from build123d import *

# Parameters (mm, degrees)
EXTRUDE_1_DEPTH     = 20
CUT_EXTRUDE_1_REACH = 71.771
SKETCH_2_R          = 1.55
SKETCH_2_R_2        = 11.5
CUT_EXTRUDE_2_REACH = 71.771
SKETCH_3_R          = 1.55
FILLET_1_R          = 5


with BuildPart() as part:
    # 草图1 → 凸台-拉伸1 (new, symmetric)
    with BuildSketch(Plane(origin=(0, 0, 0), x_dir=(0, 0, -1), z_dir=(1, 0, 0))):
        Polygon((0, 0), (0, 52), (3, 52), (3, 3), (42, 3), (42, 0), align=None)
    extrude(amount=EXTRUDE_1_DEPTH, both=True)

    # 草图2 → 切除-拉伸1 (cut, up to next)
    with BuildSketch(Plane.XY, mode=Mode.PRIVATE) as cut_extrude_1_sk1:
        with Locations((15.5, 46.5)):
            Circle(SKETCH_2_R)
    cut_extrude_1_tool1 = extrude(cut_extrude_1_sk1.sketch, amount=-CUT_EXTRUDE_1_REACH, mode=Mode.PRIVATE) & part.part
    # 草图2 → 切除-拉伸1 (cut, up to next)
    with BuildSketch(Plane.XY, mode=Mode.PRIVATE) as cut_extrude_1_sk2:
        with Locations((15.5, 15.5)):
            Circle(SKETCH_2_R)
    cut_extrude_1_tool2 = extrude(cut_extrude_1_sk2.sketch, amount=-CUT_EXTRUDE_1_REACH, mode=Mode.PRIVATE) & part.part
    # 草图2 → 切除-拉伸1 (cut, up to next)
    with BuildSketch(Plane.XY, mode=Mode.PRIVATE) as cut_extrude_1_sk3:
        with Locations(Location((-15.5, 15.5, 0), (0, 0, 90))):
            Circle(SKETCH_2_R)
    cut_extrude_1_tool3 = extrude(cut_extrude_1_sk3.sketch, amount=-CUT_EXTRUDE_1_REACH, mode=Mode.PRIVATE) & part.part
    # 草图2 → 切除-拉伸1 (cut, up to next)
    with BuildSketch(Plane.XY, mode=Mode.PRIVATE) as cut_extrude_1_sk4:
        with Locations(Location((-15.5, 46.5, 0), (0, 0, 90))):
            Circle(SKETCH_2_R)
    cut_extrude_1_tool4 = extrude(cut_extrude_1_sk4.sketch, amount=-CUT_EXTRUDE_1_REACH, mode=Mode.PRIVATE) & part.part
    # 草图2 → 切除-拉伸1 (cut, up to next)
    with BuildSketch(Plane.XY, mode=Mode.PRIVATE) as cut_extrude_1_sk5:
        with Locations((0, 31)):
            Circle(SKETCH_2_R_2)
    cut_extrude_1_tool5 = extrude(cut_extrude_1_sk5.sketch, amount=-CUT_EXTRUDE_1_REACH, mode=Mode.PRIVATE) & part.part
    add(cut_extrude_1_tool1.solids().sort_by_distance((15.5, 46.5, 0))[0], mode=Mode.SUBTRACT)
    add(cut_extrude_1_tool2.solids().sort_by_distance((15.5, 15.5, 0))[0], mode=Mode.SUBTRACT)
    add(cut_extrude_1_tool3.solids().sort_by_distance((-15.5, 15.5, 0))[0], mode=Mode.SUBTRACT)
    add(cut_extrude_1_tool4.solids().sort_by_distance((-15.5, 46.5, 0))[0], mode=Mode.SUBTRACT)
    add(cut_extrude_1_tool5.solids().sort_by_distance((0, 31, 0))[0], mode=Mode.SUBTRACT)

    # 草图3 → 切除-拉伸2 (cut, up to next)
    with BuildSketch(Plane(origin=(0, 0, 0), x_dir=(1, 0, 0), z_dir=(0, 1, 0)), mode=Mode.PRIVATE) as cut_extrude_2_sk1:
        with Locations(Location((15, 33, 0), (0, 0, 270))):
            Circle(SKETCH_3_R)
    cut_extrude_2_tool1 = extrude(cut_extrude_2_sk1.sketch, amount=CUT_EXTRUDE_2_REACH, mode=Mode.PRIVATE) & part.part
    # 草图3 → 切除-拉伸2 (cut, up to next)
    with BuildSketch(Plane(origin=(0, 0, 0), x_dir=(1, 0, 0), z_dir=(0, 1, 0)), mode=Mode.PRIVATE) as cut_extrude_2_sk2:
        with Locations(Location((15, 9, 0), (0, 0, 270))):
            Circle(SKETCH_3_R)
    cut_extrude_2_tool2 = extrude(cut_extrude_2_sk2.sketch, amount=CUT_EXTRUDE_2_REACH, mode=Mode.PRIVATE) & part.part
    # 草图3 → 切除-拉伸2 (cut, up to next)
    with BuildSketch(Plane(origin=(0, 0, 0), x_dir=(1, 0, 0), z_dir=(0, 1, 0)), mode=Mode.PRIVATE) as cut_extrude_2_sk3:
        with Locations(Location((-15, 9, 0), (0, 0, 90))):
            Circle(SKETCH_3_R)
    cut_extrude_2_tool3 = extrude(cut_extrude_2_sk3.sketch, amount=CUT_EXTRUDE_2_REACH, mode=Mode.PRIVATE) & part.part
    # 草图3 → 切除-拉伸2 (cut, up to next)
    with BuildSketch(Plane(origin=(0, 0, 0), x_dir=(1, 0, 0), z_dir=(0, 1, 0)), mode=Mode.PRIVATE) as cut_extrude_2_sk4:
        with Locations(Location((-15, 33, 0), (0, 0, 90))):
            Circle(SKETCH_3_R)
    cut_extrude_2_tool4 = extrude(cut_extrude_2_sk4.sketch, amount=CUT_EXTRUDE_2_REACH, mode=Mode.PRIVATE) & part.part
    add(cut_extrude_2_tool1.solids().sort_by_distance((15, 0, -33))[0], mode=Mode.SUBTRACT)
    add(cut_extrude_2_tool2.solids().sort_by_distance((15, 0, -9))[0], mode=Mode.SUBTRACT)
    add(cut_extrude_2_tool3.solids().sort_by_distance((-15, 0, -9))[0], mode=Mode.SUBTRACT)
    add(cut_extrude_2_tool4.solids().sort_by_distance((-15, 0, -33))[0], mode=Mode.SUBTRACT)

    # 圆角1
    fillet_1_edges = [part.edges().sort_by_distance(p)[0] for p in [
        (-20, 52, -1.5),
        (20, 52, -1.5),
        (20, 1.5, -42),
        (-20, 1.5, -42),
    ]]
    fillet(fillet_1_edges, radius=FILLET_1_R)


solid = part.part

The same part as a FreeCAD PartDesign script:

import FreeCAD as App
import Part
import Sketcher


def edges_at(feature, points):
    """Names of the edges that pass closest to the given points."""
    edges = feature.Shape.Edges
    near = lambda p: min(range(len(edges)), key=lambda i: edges[i].distToShape(Part.Vertex(*p))[0])
    return sorted({f"Edge{near(p) + 1}" for p in points})


def add_polygon(sketch, points):
    """Adds a closed chain of lines whose ends are joined by coincident constraints."""
    first, n = sketch.GeometryCount, len(points)
    for a, b in zip(points, points[1:] + points[:1]):
        sketch.addGeometry(Part.LineSegment(App.Vector(*a, 0), App.Vector(*b, 0)), False)
    for i in range(n):
        sketch.addConstraint(Sketcher.Constraint("Coincident", first + i, 2, first + (i + 1) % n, 1))

doc = App.newDocument("Part")
body = doc.addObject("PartDesign::Body", "Body")

sketch1 = body.newObject("Sketcher::SketchObject", "Sketch")
sketch1.AttachmentSupport = (doc.getObject("YZ_Plane"), [""])
sketch1.MapMode = "FlatFace"
add_polygon(sketch1, [(52, 0), (0, 0), (0, -42), (3, -42), (3, -3), (52, -3)])
sketch1.addConstraint([
    Sketcher.Constraint("Horizontal", 0),
    Sketcher.Constraint("Vertical", 1),
    Sketcher.Constraint("Horizontal", 2),
    Sketcher.Constraint("Vertical", 3),
    Sketcher.Constraint("Horizontal", 4),
    Sketcher.Constraint("Vertical", 5),
    Sketcher.Constraint("Coincident", 0, 2, -1, 1),
    Sketcher.Constraint("Equal", 2, 5),
    Sketcher.Constraint("DistanceX", 0, 2, 0, 1, 52.0),
    Sketcher.Constraint("DistanceX", 2, 1, 2, 2, 3.0),
    Sketcher.Constraint("DistanceY", 1, 2, 1, 1, 42.0),
])
pad1 = body.newObject("PartDesign::Pad", "Pad")
pad1.Profile = sketch1
pad1.Length = 40
pad1.Midplane = True

sketch2 = body.newObject("Sketcher::SketchObject", "Sketch001")
sketch2.AttachmentSupport = (doc.getObject("XY_Plane"), [""])
sketch2.MapMode = "FlatFace"
sketch2.addGeometry(Part.Circle(App.Vector(15.5, 46.5, 0), App.Vector(0, 0, 1), 1.6), False)
sketch2.addConstraint([
    Sketcher.Constraint("Diameter", 0, 3.1),
    Sketcher.Constraint("DistanceX", -1, 1, 0, 3, 15.5),
    Sketcher.Constraint("DistanceY", -1, 1, 0, 3, 46.5),
])
pocket1 = body.newObject("PartDesign::Pocket", "Pocket")
pocket1.Profile = sketch2
pocket1.Type = "UpToFirst"

sketch3 = body.newObject("Sketcher::SketchObject", "Sketch002")
sketch3.AttachmentSupport = (doc.getObject("XY_Plane"), [""])
sketch3.MapMode = "FlatFace"
sketch3.addGeometry(Part.Circle(App.Vector(15.5, 15.5, 0), App.Vector(0, 0, 1), 1.6), False)
sketch3.addConstraint([
    Sketcher.Constraint("Diameter", 0, 3.1),
    Sketcher.Constraint("DistanceX", -1, 1, 0, 3, 15.5),
    Sketcher.Constraint("DistanceY", -1, 1, 0, 3, 15.5),
])
pocket2 = body.newObject("PartDesign::Pocket", "Pocket001")
pocket2.Profile = sketch3
pocket2.Type = "UpToFirst"

sketch4 = body.newObject("Sketcher::SketchObject", "Sketch003")
sketch4.AttachmentSupport = (doc.getObject("XY_Plane"), [""])
sketch4.MapMode = "FlatFace"
sketch4.addGeometry(Part.Circle(App.Vector(-15.5, 15.5, 0), App.Vector(0, 0, 1), 1.6), False)
sketch4.addConstraint([
    Sketcher.Constraint("Diameter", 0, 3.1),
    Sketcher.Constraint("DistanceX", 0, 3, -1, 1, 15.5),
    Sketcher.Constraint("DistanceY", -1, 1, 0, 3, 15.5),
])
pocket3 = body.newObject("PartDesign::Pocket", "Pocket002")
pocket3.Profile = sketch4
pocket3.Type = "UpToFirst"

sketch5 = body.newObject("Sketcher::SketchObject", "Sketch004")
sketch5.AttachmentSupport = (doc.getObject("XY_Plane"), [""])
sketch5.MapMode = "FlatFace"
sketch5.addGeometry(Part.Circle(App.Vector(-15.5, 46.5, 0), App.Vector(0, 0, 1), 1.6), False)
sketch5.addConstraint([
    Sketcher.Constraint("Diameter", 0, 3.1),
    Sketcher.Constraint("DistanceX", 0, 3, -1, 1, 15.5),
    Sketcher.Constraint("DistanceY", -1, 1, 0, 3, 46.5),
])
pocket4 = body.newObject("PartDesign::Pocket", "Pocket003")
pocket4.Profile = sketch5
pocket4.Type = "UpToFirst"

sketch6 = body.newObject("Sketcher::SketchObject", "Sketch005")
sketch6.AttachmentSupport = (doc.getObject("XY_Plane"), [""])
sketch6.MapMode = "FlatFace"
sketch6.addGeometry(Part.Circle(App.Vector(0, 31, 0), App.Vector(0, 0, 1), 12), False)
sketch6.addConstraint([
    Sketcher.Constraint("PointOnObject", 0, 3, -2),
    Sketcher.Constraint("Diameter", 0, 23.0),
    Sketcher.Constraint("DistanceY", -1, 1, 0, 3, 31.0),
])
pocket5 = body.newObject("PartDesign::Pocket", "Pocket004")
pocket5.Profile = sketch6
pocket5.Type = "UpToFirst"

sketch7 = body.newObject("Sketcher::SketchObject", "Sketch006")
sketch7.AttachmentSupport = (doc.getObject("XZ_Plane"), [""])
sketch7.MapMode = "FlatFace"
sketch7.addGeometry(Part.Circle(App.Vector(15, -33, 0), App.Vector(0, 0, 1), 1.6), False)
sketch7.addConstraint([
    Sketcher.Constraint("Diameter", 0, 3.1),
    Sketcher.Constraint("DistanceX", -1, 1, 0, 3, 15.0),
    Sketcher.Constraint("DistanceY", 0, 3, -1, 1, 33.0),
])
pocket6 = body.newObject("PartDesign::Pocket", "Pocket005")
pocket6.Profile = sketch7
pocket6.Type = "UpToFirst"

sketch8 = body.newObject("Sketcher::SketchObject", "Sketch007")
sketch8.AttachmentSupport = (doc.getObject("XZ_Plane"), [""])
sketch8.MapMode = "FlatFace"
sketch8.addGeometry(Part.Circle(App.Vector(15, -9, 0), App.Vector(0, 0, 1), 1.6), False)
sketch8.addConstraint([
    Sketcher.Constraint("Diameter", 0, 3.1),
    Sketcher.Constraint("DistanceX", -1, 1, 0, 3, 15.0),
    Sketcher.Constraint("DistanceY", 0, 3, -1, 1, 9.0),
])
pocket7 = body.newObject("PartDesign::Pocket", "Pocket006")
pocket7.Profile = sketch8
pocket7.Type = "UpToFirst"

sketch9 = body.newObject("Sketcher::SketchObject", "Sketch008")
sketch9.AttachmentSupport = (doc.getObject("XZ_Plane"), [""])
sketch9.MapMode = "FlatFace"
sketch9.addGeometry(Part.Circle(App.Vector(-15, -9, 0), App.Vector(0, 0, 1), 1.6), False)
sketch9.addConstraint([
    Sketcher.Constraint("Diameter", 0, 3.1),
    Sketcher.Constraint("DistanceX", 0, 3, -1, 1, 15.0),
    Sketcher.Constraint("DistanceY", 0, 3, -1, 1, 9.0),
])
pocket8 = body.newObject("PartDesign::Pocket", "Pocket007")
pocket8.Profile = sketch9
pocket8.Type = "UpToFirst"

sketch10 = body.newObject("Sketcher::SketchObject", "Sketch009")
sketch10.AttachmentSupport = (doc.getObject("XZ_Plane"), [""])
sketch10.MapMode = "FlatFace"
sketch10.addGeometry(Part.Circle(App.Vector(-15, -33, 0), App.Vector(0, 0, 1), 1.6), False)
sketch10.addConstraint([
    Sketcher.Constraint("Diameter", 0, 3.1),
    Sketcher.Constraint("DistanceX", 0, 3, -1, 1, 15.0),
    Sketcher.Constraint("DistanceY", 0, 3, -1, 1, 33.0),
])
pocket9 = body.newObject("PartDesign::Pocket", "Pocket008")
pocket9.Profile = sketch10
pocket9.Type = "UpToFirst"
doc.recompute()

fillet = body.newObject("PartDesign::Fillet", "Fillet")
fillet.Base = (pocket9, edges_at(pocket9, [
    (-20, 52, -1.5),
    (20, 52, -1.5),
    (20, 1.5, -42),
    (-20, 1.5, -42),
]))
fillet.Radius = 5

doc.recompute()
